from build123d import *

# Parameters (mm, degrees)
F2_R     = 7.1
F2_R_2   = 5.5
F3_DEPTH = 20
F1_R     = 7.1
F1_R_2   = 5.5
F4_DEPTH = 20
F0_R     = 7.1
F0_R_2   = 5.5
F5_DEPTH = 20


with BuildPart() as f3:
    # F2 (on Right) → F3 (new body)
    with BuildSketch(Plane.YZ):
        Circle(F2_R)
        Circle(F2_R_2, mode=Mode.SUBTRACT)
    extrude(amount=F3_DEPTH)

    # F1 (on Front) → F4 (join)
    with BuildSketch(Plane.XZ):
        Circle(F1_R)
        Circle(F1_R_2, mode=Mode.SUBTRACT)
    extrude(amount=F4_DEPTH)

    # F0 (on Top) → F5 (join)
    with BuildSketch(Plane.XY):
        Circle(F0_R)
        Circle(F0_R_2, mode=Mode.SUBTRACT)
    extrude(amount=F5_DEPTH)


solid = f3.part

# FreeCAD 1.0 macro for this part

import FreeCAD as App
import Part
import Sketcher

V = App.Vector

doc = App.newDocument("Part")
params = doc.addObject("Spreadsheet::Sheet", "Params")
for row, (alias, value) in enumerate([
    ("sketch1_diameter", "11 mm"),
    ("sketch1_diameter2", "14.2 mm"),
    ("pad1_length", "20 mm"),
    ("sketch2_diameter", "11 mm"),
    ("sketch2_diameter2", "14.2 mm"),
    ("pad2_length", "20 mm"),
    ("sketch3_diameter", "11 mm"),
    ("sketch3_diameter2", "14.2 mm"),
    ("pad3_length", "20 mm"),
], start=1):
    params.set(f"A{row}", alias)
    params.set(f"B{row}", "=" + value)
    params.setAlias(f"B{row}", alias)

body = doc.addObject("PartDesign::Body", "Body")

# Sketch on YZ plane
sketch1 = doc.addObject("Sketcher::SketchObject", "Sketch")
body.addObject(sketch1)
sketch1.AttachmentSupport = (doc.YZ_Plane, [""])
sketch1.MapMode = "FlatFace"
sketch1.addGeometry(Part.Circle(V(0, 0, 0), V(0, 0, 1), 7), False)
sketch1.addGeometry(Part.Circle(V(0, 0, 0), V(0, 0, 1), 6), False)
sketch1.addConstraint(Sketcher.Constraint("Coincident", 0, 3, -1, 1))
sketch1.addConstraint(Sketcher.Constraint("Coincident", 1, 3, -1, 1))
sketch1.addConstraint(Sketcher.Constraint("Diameter", 1, 11.0))
sketch1.addConstraint(Sketcher.Constraint("Diameter", 0, 14.2))
sketch1.setExpression("Constraints[2]", "Params.sketch1_diameter")
sketch1.setExpression("Constraints[3]", "Params.sketch1_diameter2")
pad1 = doc.addObject("PartDesign::Pad", "Pad")
body.addObject(pad1)
pad1.Profile = sketch1
pad1.setExpression("Length", "Params.pad1_length")

# Sketch on XZ plane
sketch2 = doc.addObject("Sketcher::SketchObject", "Sketch001")
body.addObject(sketch2)
sketch2.AttachmentSupport = (doc.XZ_Plane, [""])
sketch2.MapMode = "FlatFace"
sketch2.addGeometry(Part.Circle(V(0, 0, 0), V(0, 0, 1), 7), False)
sketch2.addGeometry(Part.Circle(V(0, 0, 0), V(0, 0, 1), 6), False)
sketch2.addConstraint(Sketcher.Constraint("Coincident", 0, 3, -1, 1))
sketch2.addConstraint(Sketcher.Constraint("Coincident", 1, 3, -1, 1))
sketch2.addConstraint(Sketcher.Constraint("Diameter", 1, 11.0))
sketch2.addConstraint(Sketcher.Constraint("Diameter", 0, 14.2))
sketch2.setExpression("Constraints[2]", "Params.sketch2_diameter")
sketch2.setExpression("Constraints[3]", "Params.sketch2_diameter2")
pad2 = doc.addObject("PartDesign::Pad", "Pad001")
body.addObject(pad2)
pad2.Profile = sketch2
pad2.setExpression("Length", "Params.pad2_length")

# Sketch on XY plane
sketch3 = doc.addObject("Sketcher::SketchObject", "Sketch002")
body.addObject(sketch3)
sketch3.AttachmentSupport = (doc.XY_Plane, [""])
sketch3.MapMode = "FlatFace"
sketch3.addGeometry(Part.Circle(V(0, 0, 0), V(0, 0, 1), 7), False)
sketch3.addGeometry(Part.Circle(V(0, 0, 0), V(0, 0, 1), 6), False)
sketch3.addConstraint(Sketcher.Constraint("Coincident", 0, 3, -1, 1))
sketch3.addConstraint(Sketcher.Constraint("Coincident", 1, 3, -1, 1))
sketch3.addConstraint(Sketcher.Constraint("Diameter", 1, 11.0))
sketch3.addConstraint(Sketcher.Constraint("Diameter", 0, 14.2))
sketch3.setExpression("Constraints[2]", "Params.sketch3_diameter")
sketch3.setExpression("Constraints[3]", "Params.sketch3_diameter2")
pad3 = doc.addObject("PartDesign::Pad", "Pad002")
body.addObject(pad3)
pad3.Profile = sketch3
pad3.setExpression("Length", "Params.pad3_length")

doc.recompute()
